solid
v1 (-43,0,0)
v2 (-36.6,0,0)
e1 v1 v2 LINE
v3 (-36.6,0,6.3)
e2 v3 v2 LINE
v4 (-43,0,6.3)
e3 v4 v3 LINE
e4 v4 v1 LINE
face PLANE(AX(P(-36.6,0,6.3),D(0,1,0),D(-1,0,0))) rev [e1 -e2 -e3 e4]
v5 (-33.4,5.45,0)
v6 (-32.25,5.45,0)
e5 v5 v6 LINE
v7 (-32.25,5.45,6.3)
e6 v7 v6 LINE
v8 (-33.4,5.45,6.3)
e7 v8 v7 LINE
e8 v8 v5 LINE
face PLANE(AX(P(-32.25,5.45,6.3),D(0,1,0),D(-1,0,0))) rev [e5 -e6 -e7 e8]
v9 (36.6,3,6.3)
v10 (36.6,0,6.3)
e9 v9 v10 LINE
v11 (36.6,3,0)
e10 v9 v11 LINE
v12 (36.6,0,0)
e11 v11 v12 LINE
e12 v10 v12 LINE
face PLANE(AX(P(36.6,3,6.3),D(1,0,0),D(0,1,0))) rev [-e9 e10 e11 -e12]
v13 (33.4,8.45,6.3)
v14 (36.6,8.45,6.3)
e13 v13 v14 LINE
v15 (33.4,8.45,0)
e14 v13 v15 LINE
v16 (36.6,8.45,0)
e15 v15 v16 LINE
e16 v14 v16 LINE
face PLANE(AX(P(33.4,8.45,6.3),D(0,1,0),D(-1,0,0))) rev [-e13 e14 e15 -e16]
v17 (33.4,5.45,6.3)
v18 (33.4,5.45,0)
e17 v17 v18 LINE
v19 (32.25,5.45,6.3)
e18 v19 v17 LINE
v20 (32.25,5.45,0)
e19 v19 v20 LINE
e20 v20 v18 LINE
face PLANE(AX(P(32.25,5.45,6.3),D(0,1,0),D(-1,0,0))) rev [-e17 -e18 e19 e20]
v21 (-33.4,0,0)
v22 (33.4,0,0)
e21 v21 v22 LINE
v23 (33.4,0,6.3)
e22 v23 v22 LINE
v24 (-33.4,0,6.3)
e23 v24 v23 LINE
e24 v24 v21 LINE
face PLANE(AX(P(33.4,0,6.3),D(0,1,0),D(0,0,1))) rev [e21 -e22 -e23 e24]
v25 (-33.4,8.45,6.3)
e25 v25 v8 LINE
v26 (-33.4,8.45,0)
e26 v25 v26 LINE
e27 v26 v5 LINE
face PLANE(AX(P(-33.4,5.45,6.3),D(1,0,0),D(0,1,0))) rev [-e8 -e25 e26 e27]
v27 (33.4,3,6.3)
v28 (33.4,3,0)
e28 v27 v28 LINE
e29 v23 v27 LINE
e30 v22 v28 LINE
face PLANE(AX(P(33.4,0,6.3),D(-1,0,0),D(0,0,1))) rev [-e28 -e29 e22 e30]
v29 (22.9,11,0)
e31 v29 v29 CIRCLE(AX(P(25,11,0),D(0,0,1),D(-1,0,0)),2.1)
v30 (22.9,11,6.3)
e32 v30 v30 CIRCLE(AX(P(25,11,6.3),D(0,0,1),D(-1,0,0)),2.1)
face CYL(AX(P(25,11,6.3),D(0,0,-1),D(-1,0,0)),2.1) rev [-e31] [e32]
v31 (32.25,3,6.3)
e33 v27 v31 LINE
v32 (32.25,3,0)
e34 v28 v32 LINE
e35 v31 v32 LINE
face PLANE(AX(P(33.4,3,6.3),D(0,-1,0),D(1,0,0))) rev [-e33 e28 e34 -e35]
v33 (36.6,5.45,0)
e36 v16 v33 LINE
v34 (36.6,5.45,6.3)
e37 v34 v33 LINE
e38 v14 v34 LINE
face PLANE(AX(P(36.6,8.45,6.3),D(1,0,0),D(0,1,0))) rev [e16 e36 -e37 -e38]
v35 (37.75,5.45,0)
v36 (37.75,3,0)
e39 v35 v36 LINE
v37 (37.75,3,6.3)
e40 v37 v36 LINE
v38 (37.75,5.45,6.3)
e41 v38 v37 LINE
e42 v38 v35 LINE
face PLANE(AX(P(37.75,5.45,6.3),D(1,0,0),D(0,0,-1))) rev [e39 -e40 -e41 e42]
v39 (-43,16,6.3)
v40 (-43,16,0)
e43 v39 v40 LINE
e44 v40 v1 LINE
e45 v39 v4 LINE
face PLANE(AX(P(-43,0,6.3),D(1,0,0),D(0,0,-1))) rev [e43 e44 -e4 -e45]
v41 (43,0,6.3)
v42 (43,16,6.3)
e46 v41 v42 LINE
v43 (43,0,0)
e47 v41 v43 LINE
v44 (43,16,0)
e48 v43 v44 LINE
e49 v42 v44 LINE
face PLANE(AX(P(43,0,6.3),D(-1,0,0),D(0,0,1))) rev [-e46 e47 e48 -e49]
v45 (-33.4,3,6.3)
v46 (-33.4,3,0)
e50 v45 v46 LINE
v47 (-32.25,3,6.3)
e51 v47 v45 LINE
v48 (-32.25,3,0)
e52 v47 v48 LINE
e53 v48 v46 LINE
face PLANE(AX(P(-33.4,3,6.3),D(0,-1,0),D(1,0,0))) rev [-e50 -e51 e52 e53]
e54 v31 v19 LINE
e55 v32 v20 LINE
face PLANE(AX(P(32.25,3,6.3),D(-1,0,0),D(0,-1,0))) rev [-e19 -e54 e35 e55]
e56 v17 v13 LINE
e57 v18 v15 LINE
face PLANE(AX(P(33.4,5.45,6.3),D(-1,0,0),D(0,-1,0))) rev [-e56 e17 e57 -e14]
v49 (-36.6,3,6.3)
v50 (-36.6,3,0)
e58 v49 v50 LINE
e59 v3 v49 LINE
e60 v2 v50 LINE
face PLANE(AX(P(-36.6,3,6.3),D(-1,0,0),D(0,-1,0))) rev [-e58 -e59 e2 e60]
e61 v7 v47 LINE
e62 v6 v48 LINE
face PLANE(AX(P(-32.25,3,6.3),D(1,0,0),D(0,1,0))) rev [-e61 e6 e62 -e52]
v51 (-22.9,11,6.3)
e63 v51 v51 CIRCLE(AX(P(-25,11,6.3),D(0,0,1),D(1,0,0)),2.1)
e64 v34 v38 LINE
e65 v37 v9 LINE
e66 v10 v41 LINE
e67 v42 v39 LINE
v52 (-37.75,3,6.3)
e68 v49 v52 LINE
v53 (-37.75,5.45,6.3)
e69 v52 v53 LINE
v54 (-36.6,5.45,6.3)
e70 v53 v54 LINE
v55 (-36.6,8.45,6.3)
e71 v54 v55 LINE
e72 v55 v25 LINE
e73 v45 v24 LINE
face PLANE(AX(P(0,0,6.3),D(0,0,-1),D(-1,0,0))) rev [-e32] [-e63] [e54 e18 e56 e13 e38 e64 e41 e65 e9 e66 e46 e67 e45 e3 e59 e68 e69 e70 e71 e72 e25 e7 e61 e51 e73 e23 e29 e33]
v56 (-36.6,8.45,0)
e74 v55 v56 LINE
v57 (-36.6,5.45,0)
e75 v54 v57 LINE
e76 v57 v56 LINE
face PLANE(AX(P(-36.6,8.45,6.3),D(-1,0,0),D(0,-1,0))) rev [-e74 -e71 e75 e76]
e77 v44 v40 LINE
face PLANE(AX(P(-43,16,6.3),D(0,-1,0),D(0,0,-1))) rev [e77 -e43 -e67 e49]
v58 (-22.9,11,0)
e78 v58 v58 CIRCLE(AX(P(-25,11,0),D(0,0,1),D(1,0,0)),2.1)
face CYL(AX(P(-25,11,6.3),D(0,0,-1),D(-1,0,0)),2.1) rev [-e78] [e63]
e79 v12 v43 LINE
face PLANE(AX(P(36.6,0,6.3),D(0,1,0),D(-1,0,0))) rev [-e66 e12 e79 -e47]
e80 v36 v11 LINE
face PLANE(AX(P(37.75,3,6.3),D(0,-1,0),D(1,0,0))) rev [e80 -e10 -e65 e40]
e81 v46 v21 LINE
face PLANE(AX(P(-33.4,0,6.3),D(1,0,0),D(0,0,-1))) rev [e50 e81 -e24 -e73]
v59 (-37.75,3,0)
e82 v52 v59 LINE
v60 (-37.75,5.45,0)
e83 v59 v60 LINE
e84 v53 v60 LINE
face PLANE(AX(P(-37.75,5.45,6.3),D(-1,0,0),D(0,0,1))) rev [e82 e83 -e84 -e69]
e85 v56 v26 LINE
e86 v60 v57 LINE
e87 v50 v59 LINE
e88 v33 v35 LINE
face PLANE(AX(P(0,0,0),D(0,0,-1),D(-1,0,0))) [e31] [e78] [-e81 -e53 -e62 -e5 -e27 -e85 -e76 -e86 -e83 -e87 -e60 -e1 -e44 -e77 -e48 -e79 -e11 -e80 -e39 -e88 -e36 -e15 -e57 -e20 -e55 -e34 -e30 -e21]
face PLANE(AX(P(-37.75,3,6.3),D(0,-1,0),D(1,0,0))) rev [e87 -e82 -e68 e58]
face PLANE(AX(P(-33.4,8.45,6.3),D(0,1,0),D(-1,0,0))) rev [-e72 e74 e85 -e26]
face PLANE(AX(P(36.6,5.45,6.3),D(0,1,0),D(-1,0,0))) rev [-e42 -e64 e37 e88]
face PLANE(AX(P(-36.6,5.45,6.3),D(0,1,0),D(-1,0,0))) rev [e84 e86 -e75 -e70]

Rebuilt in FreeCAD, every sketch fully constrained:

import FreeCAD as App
import Part
import Sketcher
Q = App.Units.Quantity

doc = App.newDocument("Part")
body = doc.addObject("PartDesign::Body", "Body")

# Sketch on XY plane
sketch1 = body.newObject("Sketcher::SketchObject", "Sketch")
sketch1.AttachmentSupport = (doc.getObject("XY_Plane"), [""])
sketch1.MapMode = "FlatFace"
sketch1.addGeometry([
    Part.LineSegment(App.Vector(-33.4, 0, 0), App.Vector(33.4, 0, 0)),  # 0
    Part.LineSegment(App.Vector(33.4, 0, 0), App.Vector(33.4, 3, 0)),  # 1
    Part.LineSegment(App.Vector(33.4, 3, 0), App.Vector(32.2, 3, 0)),  # 2
    Part.LineSegment(App.Vector(32.2, 3, 0), App.Vector(32.2, 5.5, 0)),  # 3
    Part.LineSegment(App.Vector(32.2, 5.5, 0), App.Vector(33.4, 5.5, 0)),  # 4
    Part.LineSegment(App.Vector(33.4, 5.5, 0), App.Vector(33.4, 8.4, 0)),  # 5
    Part.LineSegment(App.Vector(33.4, 8.4, 0), App.Vector(36.6, 8.4, 0)),  # 6
    Part.LineSegment(App.Vector(36.6, 8.4, 0), App.Vector(36.6, 5.5, 0)),  # 7
    Part.LineSegment(App.Vector(36.6, 5.5, 0), App.Vector(37.8, 5.5, 0)),  # 8
    Part.LineSegment(App.Vector(37.8, 5.5, 0), App.Vector(37.8, 3, 0)),  # 9
    Part.LineSegment(App.Vector(37.8, 3, 0), App.Vector(36.6, 3, 0)),  # 10
    Part.LineSegment(App.Vector(36.6, 3, 0), App.Vector(36.6, 0, 0)),  # 11
    Part.LineSegment(App.Vector(36.6, 0, 0), App.Vector(43, 0, 0)),  # 12
    Part.LineSegment(App.Vector(43, 0, 0), App.Vector(43, 16, 0)),  # 13
    Part.LineSegment(App.Vector(43, 16, 0), App.Vector(-43, 16, 0)),  # 14
    Part.LineSegment(App.Vector(-43, 16, 0), App.Vector(-43, 0, 0)),  # 15
    Part.LineSegment(App.Vector(-43, 0, 0), App.Vector(-36.6, 0, 0)),  # 16
    Part.LineSegment(App.Vector(-36.6, 0, 0), App.Vector(-36.6, 3, 0)),  # 17
    Part.LineSegment(App.Vector(-36.6, 3, 0), App.Vector(-37.8, 3, 0)),  # 18
    Part.LineSegment(App.Vector(-37.8, 3, 0), App.Vector(-37.8, 5.5, 0)),  # 19
    Part.LineSegment(App.Vector(-37.8, 5.5, 0), App.Vector(-36.6, 5.5, 0)),  # 20
    Part.LineSegment(App.Vector(-36.6, 5.5, 0), App.Vector(-36.6, 8.4, 0)),  # 21
    Part.LineSegment(App.Vector(-36.6, 8.4, 0), App.Vector(-33.4, 8.4, 0)),  # 22
    Part.LineSegment(App.Vector(-33.4, 8.4, 0), App.Vector(-33.4, 5.5, 0)),  # 23
    Part.LineSegment(App.Vector(-33.4, 5.5, 0), App.Vector(-32.2, 5.5, 0)),  # 24
    Part.LineSegment(App.Vector(-32.2, 5.5, 0), App.Vector(-32.2, 3, 0)),  # 25
    Part.LineSegment(App.Vector(-32.2, 3, 0), App.Vector(-33.4, 3, 0)),  # 26
    Part.LineSegment(App.Vector(-33.4, 3, 0), App.Vector(-33.4, 0, 0)),  # 27
    Part.Circle(App.Vector(25, 11, 0), App.Vector(0, 0, 1), 2.1),  # 28
    Part.Circle(App.Vector(-25, 11, 0), App.Vector(0, 0, 1), 2.1),  # 29
], False)
sketch1.addConstraint([
    Sketcher.Constraint("Coincident", 0, 2, 1, 1),
    Sketcher.Constraint("Coincident", 1, 2, 2, 1),
    Sketcher.Constraint("Coincident", 2, 2, 3, 1),
    Sketcher.Constraint("Coincident", 3, 2, 4, 1),
    Sketcher.Constraint("Coincident", 4, 2, 5, 1),
    Sketcher.Constraint("Coincident", 5, 2, 6, 1),
    Sketcher.Constraint("Coincident", 6, 2, 7, 1),
    Sketcher.Constraint("Coincident", 7, 2, 8, 1),
    Sketcher.Constraint("Coincident", 8, 2, 9, 1),
    Sketcher.Constraint("Coincident", 9, 2, 10, 1),
    Sketcher.Constraint("Coincident", 10, 2, 11, 1),
    Sketcher.Constraint("Coincident", 11, 2, 12, 1),
    Sketcher.Constraint("Coincident", 12, 2, 13, 1),
    Sketcher.Constraint("Coincident", 13, 2, 14, 1),
    Sketcher.Constraint("Coincident", 14, 2, 15, 1),
    Sketcher.Constraint("Coincident", 15, 2, 16, 1),
    Sketcher.Constraint("Coincident", 16, 2, 17, 1),
    Sketcher.Constraint("Coincident", 17, 2, 18, 1),
    Sketcher.Constraint("Coincident", 18, 2, 19, 1),
    Sketcher.Constraint("Coincident", 19, 2, 20, 1),
    Sketcher.Constraint("Coincident", 20, 2, 21, 1),
    Sketcher.Constraint("Coincident", 21, 2, 22, 1),
    Sketcher.Constraint("Coincident", 22, 2, 23, 1),
    Sketcher.Constraint("Coincident", 23, 2, 24, 1),
    Sketcher.Constraint("Coincident", 24, 2, 25, 1),
    Sketcher.Constraint("Coincident", 25, 2, 26, 1),
    Sketcher.Constraint("Coincident", 26, 2, 27, 1),
    Sketcher.Constraint("Coincident", 27, 2, 0, 1),
    Sketcher.Constraint("Horizontal", 0),
    Sketcher.Constraint("Vertical", 1),
    Sketcher.Constraint("Horizontal", 2),
    Sketcher.Constraint("Vertical", 3),
    Sketcher.Constraint("Horizontal", 4),
    Sketcher.Constraint("Vertical", 5),
    Sketcher.Constraint("Horizontal", 6),
    Sketcher.Constraint("Vertical", 7),
    Sketcher.Constraint("Horizontal", 8),
    Sketcher.Constraint("Vertical", 9),
    Sketcher.Constraint("Horizontal", 10),
    Sketcher.Constraint("Vertical", 11),
    Sketcher.Constraint("Horizontal", 12),
    Sketcher.Constraint("Vertical", 13),
    Sketcher.Constraint("Horizontal", 14),
    Sketcher.Constraint("Vertical", 15),
    Sketcher.Constraint("Horizontal", 16),
    Sketcher.Constraint("Vertical", 17),
    Sketcher.Constraint("Horizontal", 18),
    Sketcher.Constraint("Vertical", 19),
    Sketcher.Constraint("Horizontal", 20),
    Sketcher.Constraint("Vertical", 21),
    Sketcher.Constraint("Horizontal", 22),
    Sketcher.Constraint("Vertical", 23),
    Sketcher.Constraint("Horizontal", 24),
    Sketcher.Constraint("Vertical", 25),
    Sketcher.Constraint("Horizontal", 26),
    Sketcher.Constraint("Vertical", 27),
    Sketcher.Constraint("Equal", 28, 29),
    Sketcher.Constraint("Symmetric", 12, 2, 15, 2, -1, 1),
    Sketcher.Constraint("Symmetric", 0, 2, 27, 2, -1, 1),
    Sketcher.Constraint("Symmetric", 28, 3, 29, 3, -2),
    Sketcher.Constraint("Symmetric", 11, 2, 16, 2, -2),
    Sketcher.Constraint("Symmetric", 9, 2, 18, 2, -2),
    Sketcher.Constraint("Symmetric", 7, 2, 20, 2, -2),
    Sketcher.Constraint("Symmetric", 5, 2, 22, 2, -2),
    Sketcher.Constraint("Symmetric", 3, 2, 24, 2, -2),
    Sketcher.Constraint("Horizontal", 4, 2, 7, 2),
    Sketcher.Constraint("Horizontal", 2, 2, 9, 2),
    Sketcher.Constraint("Horizontal", 18, 2, 25, 2),
    Sketcher.Constraint("Vertical", 1, 2, 4, 2),
    Sketcher.Constraint("Vertical", 7, 2, 10, 2),
    Sketcher.Constraint("Equal", 4, 8),
    Sketcher.Constraint("Equal", 1, 5),
    Sketcher.Constraint("Diameter", 28, Q("4.2 mm")),
    Sketcher.Constraint("DistanceX", 14, 2, 14, 1, Q("86 mm")),
    Sketcher.Constraint("DistanceY", 1, 1, 1, 2, Q("3 mm")),
    Sketcher.Constraint("DistanceY", 13, 1, 13, 2, Q("16 mm")),
    Sketcher.Constraint("DistanceX", 0, 1, 0, 2, Q("66.8 mm")),
    Sketcher.Constraint("DistanceX", 6, 1, 6, 2, Q("3.2 mm")),
    Sketcher.Constraint("DistanceX", -1, 1, 28, 3, Q("25 mm")),
    Sketcher.Constraint("DistanceY", -1, 1, 28, 3, Q("11 mm")),
    Sketcher.Constraint("DistanceX", 2, 2, 2, 1, Q("1.15 mm")),
    Sketcher.Constraint("DistanceY", 3, 1, 3, 2, Q("2.45 mm")),
])
pad1 = body.newObject("PartDesign::Pad", "Pad")
pad1.Profile = sketch1
pad1.Length = 6.3

doc.recompute()
